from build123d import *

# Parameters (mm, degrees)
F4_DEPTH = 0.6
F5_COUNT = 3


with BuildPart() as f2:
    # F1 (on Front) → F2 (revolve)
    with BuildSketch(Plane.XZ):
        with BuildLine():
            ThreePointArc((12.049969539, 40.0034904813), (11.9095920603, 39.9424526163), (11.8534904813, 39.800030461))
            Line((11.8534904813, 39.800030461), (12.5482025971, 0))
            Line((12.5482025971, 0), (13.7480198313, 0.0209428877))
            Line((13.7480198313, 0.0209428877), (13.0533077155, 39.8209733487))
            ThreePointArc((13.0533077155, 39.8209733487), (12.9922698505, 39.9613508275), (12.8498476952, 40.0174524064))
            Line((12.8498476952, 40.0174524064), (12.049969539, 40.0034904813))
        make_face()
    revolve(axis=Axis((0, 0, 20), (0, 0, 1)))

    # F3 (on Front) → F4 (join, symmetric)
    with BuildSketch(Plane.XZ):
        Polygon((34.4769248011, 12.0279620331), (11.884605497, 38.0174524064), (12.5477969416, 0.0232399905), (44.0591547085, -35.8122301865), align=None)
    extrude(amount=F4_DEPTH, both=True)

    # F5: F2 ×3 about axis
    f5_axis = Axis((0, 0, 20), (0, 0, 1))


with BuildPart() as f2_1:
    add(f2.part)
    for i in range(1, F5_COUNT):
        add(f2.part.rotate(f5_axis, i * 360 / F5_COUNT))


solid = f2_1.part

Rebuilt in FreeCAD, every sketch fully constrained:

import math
import FreeCAD as App
import Part
import Sketcher

V = App.Vector
Q = App.Units.Quantity

doc = App.newDocument("Part")
body = doc.addObject("PartDesign::Body", "Body")

# Sketch on XZ plane
sketch1 = body.newObject("Sketcher::SketchObject", "Sketch")
sketch1.AttachmentSupport = (doc.getObject("XZ_Plane"), [""])
sketch1.MapMode = "FlatFace"
sketch1.addGeometry(Part.ArcOfCircle(Part.Circle(V(12.05, 39.8, 0), V(0, 0, 1), 0.2), math.radians(91), math.radians(181)), False)
sketch1.addGeometry(Part.LineSegment(V(11.85, 39.8, 0), V(12.55, 0, 0)), False)
sketch1.addGeometry(Part.LineSegment(V(12.55, 0, 0), V(13.75, 0.02, 0)), False)
sketch1.addGeometry(Part.LineSegment(V(13.75, 0.02, 0), V(13.05, 39.82, 0)), False)
sketch1.addGeometry(Part.ArcOfCircle(Part.Circle(V(12.85, 39.82, 0), V(0, 0, 1), 0.2), math.radians(1), math.radians(91)), False)
sketch1.addGeometry(Part.LineSegment(V(12.85, 40.02, 0), V(12.05, 40, 0)), False)
sketch1.addConstraint(Sketcher.Constraint("Tangent", 0, 2, 1, 1))
sketch1.addConstraint(Sketcher.Constraint("Coincident", 1, 2, 2, 1))
sketch1.addConstraint(Sketcher.Constraint("Coincident", 2, 2, 3, 1))
sketch1.addConstraint(Sketcher.Constraint("Tangent", 3, 2, 4, 1))
sketch1.addConstraint(Sketcher.Constraint("Tangent", 4, 2, 5, 1))
sketch1.addConstraint(Sketcher.Constraint("Tangent", 5, 2, 0, 1))
sketch1.addConstraint(Sketcher.Constraint("Equal", 0, 4))
sketch1.addConstraint(Sketcher.Constraint("PointOnObject", 1, 2, -1))
sketch1.addConstraint(Sketcher.Constraint("Perpendicular", 1, 2))
sketch1.addConstraint(Sketcher.Constraint("Perpendicular", 2, 3))
sketch1.addConstraint(Sketcher.Constraint("Perpendicular", 3, 5))
sketch1.addConstraint(Sketcher.Constraint("Radius", 0, Q("0.2 mm")))
sketch1.addConstraint(Sketcher.Constraint("Angle", 1, Q("-89 deg")))
sketch1.addConstraint(Sketcher.Constraint("Distance", 2, Q("1.2 mm")))
sketch1.addConstraint(Sketcher.Constraint("DistanceX", -1, 1, 0, 3, Q("12.05346 mm")))
sketch1.addConstraint(Sketcher.Constraint("DistanceY", -1, 1, 0, 3, Q("39.803521 mm")))
revolution = body.newObject("PartDesign::Revolution", "Revolution")
revolution.Profile = sketch1
revolution.ReferenceAxis = (sketch1, ["V_Axis"])
revolution.Angle = 360

# Sketch on XZ plane
sketch2 = body.newObject("Sketcher::SketchObject", "Sketch001")
sketch2.AttachmentSupport = (doc.getObject("XZ_Plane"), [""])
sketch2.MapMode = "FlatFace"
sketch2.addGeometry(Part.LineSegment(V(34, 12, 0), V(12, 38, 0)), False)
sketch2.addGeometry(Part.LineSegment(V(12, 38, 0), V(13, 0, 0)), False)
sketch2.addGeometry(Part.LineSegment(V(13, 0, 0), V(44, -36, 0)), False)
sketch2.addGeometry(Part.LineSegment(V(44, -36, 0), V(34, 12, 0)), False)
sketch2.addConstraint(Sketcher.Constraint("Coincident", 0, 2, 1, 1))
sketch2.addConstraint(Sketcher.Constraint("Coincident", 1, 2, 2, 1))
sketch2.addConstraint(Sketcher.Constraint("Coincident", 2, 2, 3, 1))
sketch2.addConstraint(Sketcher.Constraint("Coincident", 3, 2, 0, 1))
sketch2.addConstraint(Sketcher.Constraint("Angle", 0, Q("131 deg")))
sketch2.addConstraint(Sketcher.Constraint("Angle", 1, Q("-89 deg")))
sketch2.addConstraint(Sketcher.Constraint("Distance", 1, Q("38 mm")))
sketch2.addConstraint(Sketcher.Constraint("Distance", 3, Q("48.7904 mm")))
sketch2.addConstraint(Sketcher.Constraint("DistanceY", -1, 1, 1, 2, Q("0.02324 mm")))
sketch2.addConstraint(Sketcher.Constraint("DistanceY", 2, 2, -1, 1, Q("35.81223 mm")))
sketch2.addConstraint(Sketcher.Constraint("DistanceX", 0, 2, 2, 2, Q("32.174549 mm")))
sketch2.addConstraint(Sketcher.Constraint("DistanceX", -1, 1, 0, 2, Q("11.884605 mm")))
pad1 = body.newObject("PartDesign::Pad", "Pad")
pad1.Profile = sketch2
pad1.Length = 1.2
pad1.Midplane = True
body2 = doc.addObject("PartDesign::Body", "Body001")
doc.recompute()

body2.BaseFeature = body
doc.recompute()

body3 = doc.addObject("PartDesign::Body", "Body002")
body3.BaseFeature = body
body3.Placement = App.Placement(V(0, 0, 0), App.Rotation(V(0, 0, 1), 120))
boolean = body2.newObject("PartDesign::Boolean", "Boolean")
boolean.Type = "Fuse"
boolean.addObjects([body3])
doc.recompute()

body.Placement = App.Placement(V(0, 0, 0), App.Rotation(V(0, 0, 1), 240))
boolean2 = body2.newObject("PartDesign::Boolean", "Boolean001")
boolean2.Type = "Fuse"
boolean2.addObjects([body])

doc.recompute()
